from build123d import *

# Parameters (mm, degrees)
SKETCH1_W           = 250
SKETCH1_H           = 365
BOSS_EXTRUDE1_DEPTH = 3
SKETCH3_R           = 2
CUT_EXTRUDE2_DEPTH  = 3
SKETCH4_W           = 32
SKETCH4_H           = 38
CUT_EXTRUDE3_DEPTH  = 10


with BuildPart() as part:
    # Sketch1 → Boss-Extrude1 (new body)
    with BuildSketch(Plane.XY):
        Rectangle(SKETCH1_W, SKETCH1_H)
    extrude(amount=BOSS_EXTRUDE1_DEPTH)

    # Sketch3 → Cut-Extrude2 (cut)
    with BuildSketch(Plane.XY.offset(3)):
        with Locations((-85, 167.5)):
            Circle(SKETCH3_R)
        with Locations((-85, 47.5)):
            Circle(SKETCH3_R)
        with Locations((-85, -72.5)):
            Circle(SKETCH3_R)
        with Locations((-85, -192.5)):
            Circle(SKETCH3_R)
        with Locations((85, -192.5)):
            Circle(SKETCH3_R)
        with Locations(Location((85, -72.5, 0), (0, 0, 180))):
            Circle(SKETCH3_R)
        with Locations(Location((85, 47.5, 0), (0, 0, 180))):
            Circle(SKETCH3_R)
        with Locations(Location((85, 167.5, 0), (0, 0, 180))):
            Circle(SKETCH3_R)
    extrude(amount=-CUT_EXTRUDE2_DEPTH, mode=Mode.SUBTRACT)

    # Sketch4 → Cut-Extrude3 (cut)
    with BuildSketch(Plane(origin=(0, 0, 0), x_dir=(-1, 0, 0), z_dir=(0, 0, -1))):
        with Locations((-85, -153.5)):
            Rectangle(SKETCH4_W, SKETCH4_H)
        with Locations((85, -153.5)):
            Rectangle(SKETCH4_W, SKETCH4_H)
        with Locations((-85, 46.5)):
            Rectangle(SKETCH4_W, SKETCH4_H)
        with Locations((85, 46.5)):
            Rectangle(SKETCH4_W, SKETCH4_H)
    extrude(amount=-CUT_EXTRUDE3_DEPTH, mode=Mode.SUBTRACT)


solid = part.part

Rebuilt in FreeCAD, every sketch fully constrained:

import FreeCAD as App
import Part
import Sketcher

doc = App.newDocument("Part")
params = doc.addObject("Spreadsheet::Sheet", "Params")
for row, (alias, value) in enumerate([
    ("sketch1_width", "250 mm"),
    ("sketch1_height", "365 mm"),
    ("pad1_length", "3 mm"),
    ("sketch2_diameter", "4 mm"),
    ("pocket1_length", "3 mm"),
    ("sketch3_width", "32 mm"),
    ("sketch3_height", "38 mm"),
    ("pocket2_length", "10 mm"),
], start=1):
    params.set(f"A{row}", alias)
    params.set(f"B{row}", "=" + value)
    params.setAlias(f"B{row}", alias)

body = doc.addObject("PartDesign::Body", "Body")

# Sketch on XY plane
sketch1 = body.newObject("Sketcher::SketchObject", "Sketch")
sketch1.AttachmentSupport = (doc.getObject("XY_Plane"), [""])
sketch1.MapMode = "FlatFace"
sketch1.addGeometry(Part.LineSegment(App.Vector(-125, 182, 0), App.Vector(-125, -182, 0)), False)
sketch1.addGeometry(Part.LineSegment(App.Vector(-125, -182, 0), App.Vector(125, -182, 0)), False)
sketch1.addGeometry(Part.LineSegment(App.Vector(125, -182, 0), App.Vector(125, 182, 0)), False)
sketch1.addGeometry(Part.LineSegment(App.Vector(125, 182, 0), App.Vector(-125, 182, 0)), False)
sketch1.addConstraint(Sketcher.Constraint("Coincident", 0, 2, 1, 1))
sketch1.addConstraint(Sketcher.Constraint("Coincident", 1, 2, 2, 1))
sketch1.addConstraint(Sketcher.Constraint("Coincident", 2, 2, 3, 1))
sketch1.addConstraint(Sketcher.Constraint("Coincident", 3, 2, 0, 1))
sketch1.addConstraint(Sketcher.Constraint("Vertical", 0))
sketch1.addConstraint(Sketcher.Constraint("Horizontal", 1))
sketch1.addConstraint(Sketcher.Constraint("Vertical", 2))
sketch1.addConstraint(Sketcher.Constraint("Horizontal", 3))
sketch1.addConstraint(Sketcher.Constraint("Symmetric", 0, 2, 2, 2, -1, 1))
sketch1.addConstraint(Sketcher.Constraint("DistanceX", 1, 1, 1, 2, 250.0))
sketch1.addConstraint(Sketcher.Constraint("DistanceY", 0, 2, 0, 1, 365.0))
sketch1.setExpression("Constraints[9]", "Params.sketch1_width")
sketch1.setExpression("Constraints[10]", "Params.sketch1_height")
pad1 = body.newObject("PartDesign::Pad", "Pad")
pad1.Profile = sketch1
pad1.setExpression("Length", "Params.pad1_length")

# Sketch on XY plane
sketch2 = body.newObject("Sketcher::SketchObject", "Sketch001")
sketch2.AttachmentSupport = (doc.getObject("XY_Plane"), [""])
sketch2.MapMode = "FlatFace"
sketch2.AttachmentOffset = App.Placement(App.Vector(0, 0, 3), App.Rotation())
sketch2.addGeometry(Part.Circle(App.Vector(-85, 167.5, 0), App.Vector(0, 0, 1), 2), False)
sketch2.addGeometry(Part.Circle(App.Vector(-85, 47.5, 0), App.Vector(0, 0, 1), 2), False)
sketch2.addGeometry(Part.Circle(App.Vector(-85, -72.5, 0), App.Vector(0, 0, 1), 2), False)
sketch2.addGeometry(Part.Circle(App.Vector(-85, -192.5, 0), App.Vector(0, 0, 1), 2), False)
sketch2.addGeometry(Part.Circle(App.Vector(85, -192.5, 0), App.Vector(0, 0, 1), 2), False)
sketch2.addGeometry(Part.Circle(App.Vector(85, -72.5, 0), App.Vector(0, 0, 1), 2), False)
sketch2.addGeometry(Part.Circle(App.Vector(85, 47.5, 0), App.Vector(0, 0, 1), 2), False)
sketch2.addGeometry(Part.Circle(App.Vector(85, 167.5, 0), App.Vector(0, 0, 1), 2), False)
sketch2.addConstraint(Sketcher.Constraint("Equal", 0, 1))
sketch2.addConstraint(Sketcher.Constraint("Equal", 1, 2))
sketch2.addConstraint(Sketcher.Constraint("Equal", 2, 3))
sketch2.addConstraint(Sketcher.Constraint("Equal", 3, 4))
sketch2.addConstraint(Sketcher.Constraint("Equal", 4, 5))
sketch2.addConstraint(Sketcher.Constraint("Equal", 5, 6))
sketch2.addConstraint(Sketcher.Constraint("Equal", 6, 7))
sketch2.addConstraint(Sketcher.Constraint("Symmetric", 3, 3, 4, 3, -2))
sketch2.addConstraint(Sketcher.Constraint("Symmetric", 2, 3, 5, 3, -2))
sketch2.addConstraint(Sketcher.Constraint("Symmetric", 1, 3, 6, 3, -2))
sketch2.addConstraint(Sketcher.Constraint("Symmetric", 0, 3, 7, 3, -2))
sketch2.addConstraint(Sketcher.Constraint("Vertical", 0, 3, 1, 3))
sketch2.addConstraint(Sketcher.Constraint("Vertical", 1, 3, 2, 3))
sketch2.addConstraint(Sketcher.Constraint("Vertical", 2, 3, 3, 3))
sketch2.addConstraint(Sketcher.Constraint("Diameter", 0, 4.0))
sketch2.addConstraint(Sketcher.Constraint("DistanceX", 0, 3, -1, 1, 85.0))
sketch2.addConstraint(Sketcher.Constraint("DistanceY", 1, 3, 0, 3, 120.0))
sketch2.addConstraint(Sketcher.Constraint("DistanceY", 2, 3, 1, 3, 120.0))
sketch2.addConstraint(Sketcher.Constraint("DistanceY", 3, 3, 2, 3, 120.0))
sketch2.addConstraint(Sketcher.Constraint("DistanceY", -1, 1, 0, 3, 167.5))
sketch2.setExpression("Constraints[14]", "Params.sketch2_diameter")
pocket1 = body.newObject("PartDesign::Pocket", "Pocket")
pocket1.Profile = sketch2
pocket1.setExpression("Length", "Params.pocket1_length")

# Sketch on XY plane
sketch3 = body.newObject("Sketcher::SketchObject", "Sketch002")
sketch3.AttachmentSupport = (doc.getObject("XY_Plane"), [""])
sketch3.MapMode = "FlatFace"
sketch3.addGeometry(Part.LineSegment(App.Vector(101, -134, 0), App.Vector(101, -172, 0)), False)
sketch3.addGeometry(Part.LineSegment(App.Vector(101, -172, 0), App.Vector(69, -172, 0)), False)
sketch3.addGeometry(Part.LineSegment(App.Vector(69, -172, 0), App.Vector(69, -134, 0)), False)
sketch3.addGeometry(Part.LineSegment(App.Vector(69, -134, 0), App.Vector(101, -134, 0)), False)
sketch3.addGeometry(Part.LineSegment(App.Vector(-69, -134, 0), App.Vector(-69, -172, 0)), False)
sketch3.addGeometry(Part.LineSegment(App.Vector(-69, -172, 0), App.Vector(-101, -172, 0)), False)
sketch3.addGeometry(Part.LineSegment(App.Vector(-101, -172, 0), App.Vector(-101, -134, 0)), False)
sketch3.addGeometry(Part.LineSegment(App.Vector(-101, -134, 0), App.Vector(-69, -134, 0)), False)
sketch3.addGeometry(Part.LineSegment(App.Vector(101, 66, 0), App.Vector(101, 28, 0)), False)
sketch3.addGeometry(Part.LineSegment(App.Vector(101, 28, 0), App.Vector(69, 28, 0)), False)
sketch3.addGeometry(Part.LineSegment(App.Vector(69, 28, 0), App.Vector(69, 66, 0)), False)
sketch3.addGeometry(Part.LineSegment(App.Vector(69, 66, 0), App.Vector(101, 66, 0)), False)
sketch3.addGeometry(Part.LineSegment(App.Vector(-69, 66, 0), App.Vector(-69, 28, 0)), False)
sketch3.addGeometry(Part.LineSegment(App.Vector(-69, 28, 0), App.Vector(-101, 28, 0)), False)
sketch3.addGeometry(Part.LineSegment(App.Vector(-101, 28, 0), App.Vector(-101, 66, 0)), False)
sketch3.addGeometry(Part.LineSegment(App.Vector(-101, 66, 0), App.Vector(-69, 66, 0)), False)
sketch3.addConstraint(Sketcher.Constraint("Coincident", 0, 2, 1, 1))
sketch3.addConstraint(Sketcher.Constraint("Coincident", 1, 2, 2, 1))
sketch3.addConstraint(Sketcher.Constraint("Coincident", 2, 2, 3, 1))
sketch3.addConstraint(Sketcher.Constraint("Coincident", 3, 2, 0, 1))
sketch3.addConstraint(Sketcher.Constraint("Coincident", 4, 2, 5, 1))
sketch3.addConstraint(Sketcher.Constraint("Coincident", 5, 2, 6, 1))
sketch3.addConstraint(Sketcher.Constraint("Coincident", 6, 2, 7, 1))
sketch3.addConstraint(Sketcher.Constraint("Coincident", 7, 2, 4, 1))
sketch3.addConstraint(Sketcher.Constraint("Coincident", 8, 2, 9, 1))
sketch3.addConstraint(Sketcher.Constraint("Coincident", 9, 2, 10, 1))
sketch3.addConstraint(Sketcher.Constraint("Coincident", 10, 2, 11, 1))
sketch3.addConstraint(Sketcher.Constraint("Coincident", 11, 2, 8, 1))
sketch3.addConstraint(Sketcher.Constraint("Coincident", 12, 2, 13, 1))
sketch3.addConstraint(Sketcher.Constraint("Coincident", 13, 2, 14, 1))
sketch3.addConstraint(Sketcher.Constraint("Coincident", 14, 2, 15, 1))
sketch3.addConstraint(Sketcher.Constraint("Coincident", 15, 2, 12, 1))
sketch3.addConstraint(Sketcher.Constraint("Vertical", 0))
sketch3.addConstraint(Sketcher.Constraint("Horizontal", 1))
sketch3.addConstraint(Sketcher.Constraint("Vertical", 2))
sketch3.addConstraint(Sketcher.Constraint("Horizontal", 3))
sketch3.addConstraint(Sketcher.Constraint("Vertical", 4))
sketch3.addConstraint(Sketcher.Constraint("Horizontal", 5))
sketch3.addConstraint(Sketcher.Constraint("Vertical", 6))
sketch3.addConstraint(Sketcher.Constraint("Horizontal", 7))
sketch3.addConstraint(Sketcher.Constraint("Vertical", 8))
sketch3.addConstraint(Sketcher.Constraint("Horizontal", 9))
sketch3.addConstraint(Sketcher.Constraint("Vertical", 10))
sketch3.addConstraint(Sketcher.Constraint("Horizontal", 11))
sketch3.addConstraint(Sketcher.Constraint("Vertical", 12))
sketch3.addConstraint(Sketcher.Constraint("Horizontal", 13))
sketch3.addConstraint(Sketcher.Constraint("Vertical", 14))
sketch3.addConstraint(Sketcher.Constraint("Horizontal", 15))
sketch3.addConstraint(Sketcher.Constraint("Symmetric", 1, 2, 4, 2, -2))
sketch3.addConstraint(Sketcher.Constraint("Symmetric", 3, 2, 6, 2, -2))
sketch3.addConstraint(Sketcher.Constraint("Symmetric", 9, 2, 12, 2, -2))
sketch3.addConstraint(Sketcher.Constraint("Symmetric", 11, 2, 14, 2, -2))
sketch3.addConstraint(Sketcher.Constraint("Vertical", 3, 2, 8, 2))
sketch3.addConstraint(Sketcher.Constraint("Vertical", 2, 2, 9, 2))
sketch3.addConstraint(Sketcher.Constraint("Equal", 6, 8))
sketch3.addConstraint(Sketcher.Constraint("DistanceX", 1, 2, 1, 1, 32.0))
sketch3.addConstraint(Sketcher.Constraint("DistanceY", 0, 2, 0, 1, 38.0))
sketch3.addConstraint(Sketcher.Constraint("DistanceX", -1, 1, 0, 2, 101.0))
sketch3.addConstraint(Sketcher.Constraint("DistanceY", 3, 2, 8, 2, 162.0))
sketch3.addConstraint(Sketcher.Constraint("DistanceY", 0, 2, -1, 1, 172.5))
sketch3.setExpression("Constraints[39]", "Params.sketch3_width")
sketch3.setExpression("Constraints[40]", "Params.sketch3_height")
pocket2 = body.newObject("PartDesign::Pocket", "Pocket001")
pocket2.Profile = sketch3
pocket2.setExpression("Length", "Params.pocket2_length")
pocket2.Reversed = True

doc.recompute()
